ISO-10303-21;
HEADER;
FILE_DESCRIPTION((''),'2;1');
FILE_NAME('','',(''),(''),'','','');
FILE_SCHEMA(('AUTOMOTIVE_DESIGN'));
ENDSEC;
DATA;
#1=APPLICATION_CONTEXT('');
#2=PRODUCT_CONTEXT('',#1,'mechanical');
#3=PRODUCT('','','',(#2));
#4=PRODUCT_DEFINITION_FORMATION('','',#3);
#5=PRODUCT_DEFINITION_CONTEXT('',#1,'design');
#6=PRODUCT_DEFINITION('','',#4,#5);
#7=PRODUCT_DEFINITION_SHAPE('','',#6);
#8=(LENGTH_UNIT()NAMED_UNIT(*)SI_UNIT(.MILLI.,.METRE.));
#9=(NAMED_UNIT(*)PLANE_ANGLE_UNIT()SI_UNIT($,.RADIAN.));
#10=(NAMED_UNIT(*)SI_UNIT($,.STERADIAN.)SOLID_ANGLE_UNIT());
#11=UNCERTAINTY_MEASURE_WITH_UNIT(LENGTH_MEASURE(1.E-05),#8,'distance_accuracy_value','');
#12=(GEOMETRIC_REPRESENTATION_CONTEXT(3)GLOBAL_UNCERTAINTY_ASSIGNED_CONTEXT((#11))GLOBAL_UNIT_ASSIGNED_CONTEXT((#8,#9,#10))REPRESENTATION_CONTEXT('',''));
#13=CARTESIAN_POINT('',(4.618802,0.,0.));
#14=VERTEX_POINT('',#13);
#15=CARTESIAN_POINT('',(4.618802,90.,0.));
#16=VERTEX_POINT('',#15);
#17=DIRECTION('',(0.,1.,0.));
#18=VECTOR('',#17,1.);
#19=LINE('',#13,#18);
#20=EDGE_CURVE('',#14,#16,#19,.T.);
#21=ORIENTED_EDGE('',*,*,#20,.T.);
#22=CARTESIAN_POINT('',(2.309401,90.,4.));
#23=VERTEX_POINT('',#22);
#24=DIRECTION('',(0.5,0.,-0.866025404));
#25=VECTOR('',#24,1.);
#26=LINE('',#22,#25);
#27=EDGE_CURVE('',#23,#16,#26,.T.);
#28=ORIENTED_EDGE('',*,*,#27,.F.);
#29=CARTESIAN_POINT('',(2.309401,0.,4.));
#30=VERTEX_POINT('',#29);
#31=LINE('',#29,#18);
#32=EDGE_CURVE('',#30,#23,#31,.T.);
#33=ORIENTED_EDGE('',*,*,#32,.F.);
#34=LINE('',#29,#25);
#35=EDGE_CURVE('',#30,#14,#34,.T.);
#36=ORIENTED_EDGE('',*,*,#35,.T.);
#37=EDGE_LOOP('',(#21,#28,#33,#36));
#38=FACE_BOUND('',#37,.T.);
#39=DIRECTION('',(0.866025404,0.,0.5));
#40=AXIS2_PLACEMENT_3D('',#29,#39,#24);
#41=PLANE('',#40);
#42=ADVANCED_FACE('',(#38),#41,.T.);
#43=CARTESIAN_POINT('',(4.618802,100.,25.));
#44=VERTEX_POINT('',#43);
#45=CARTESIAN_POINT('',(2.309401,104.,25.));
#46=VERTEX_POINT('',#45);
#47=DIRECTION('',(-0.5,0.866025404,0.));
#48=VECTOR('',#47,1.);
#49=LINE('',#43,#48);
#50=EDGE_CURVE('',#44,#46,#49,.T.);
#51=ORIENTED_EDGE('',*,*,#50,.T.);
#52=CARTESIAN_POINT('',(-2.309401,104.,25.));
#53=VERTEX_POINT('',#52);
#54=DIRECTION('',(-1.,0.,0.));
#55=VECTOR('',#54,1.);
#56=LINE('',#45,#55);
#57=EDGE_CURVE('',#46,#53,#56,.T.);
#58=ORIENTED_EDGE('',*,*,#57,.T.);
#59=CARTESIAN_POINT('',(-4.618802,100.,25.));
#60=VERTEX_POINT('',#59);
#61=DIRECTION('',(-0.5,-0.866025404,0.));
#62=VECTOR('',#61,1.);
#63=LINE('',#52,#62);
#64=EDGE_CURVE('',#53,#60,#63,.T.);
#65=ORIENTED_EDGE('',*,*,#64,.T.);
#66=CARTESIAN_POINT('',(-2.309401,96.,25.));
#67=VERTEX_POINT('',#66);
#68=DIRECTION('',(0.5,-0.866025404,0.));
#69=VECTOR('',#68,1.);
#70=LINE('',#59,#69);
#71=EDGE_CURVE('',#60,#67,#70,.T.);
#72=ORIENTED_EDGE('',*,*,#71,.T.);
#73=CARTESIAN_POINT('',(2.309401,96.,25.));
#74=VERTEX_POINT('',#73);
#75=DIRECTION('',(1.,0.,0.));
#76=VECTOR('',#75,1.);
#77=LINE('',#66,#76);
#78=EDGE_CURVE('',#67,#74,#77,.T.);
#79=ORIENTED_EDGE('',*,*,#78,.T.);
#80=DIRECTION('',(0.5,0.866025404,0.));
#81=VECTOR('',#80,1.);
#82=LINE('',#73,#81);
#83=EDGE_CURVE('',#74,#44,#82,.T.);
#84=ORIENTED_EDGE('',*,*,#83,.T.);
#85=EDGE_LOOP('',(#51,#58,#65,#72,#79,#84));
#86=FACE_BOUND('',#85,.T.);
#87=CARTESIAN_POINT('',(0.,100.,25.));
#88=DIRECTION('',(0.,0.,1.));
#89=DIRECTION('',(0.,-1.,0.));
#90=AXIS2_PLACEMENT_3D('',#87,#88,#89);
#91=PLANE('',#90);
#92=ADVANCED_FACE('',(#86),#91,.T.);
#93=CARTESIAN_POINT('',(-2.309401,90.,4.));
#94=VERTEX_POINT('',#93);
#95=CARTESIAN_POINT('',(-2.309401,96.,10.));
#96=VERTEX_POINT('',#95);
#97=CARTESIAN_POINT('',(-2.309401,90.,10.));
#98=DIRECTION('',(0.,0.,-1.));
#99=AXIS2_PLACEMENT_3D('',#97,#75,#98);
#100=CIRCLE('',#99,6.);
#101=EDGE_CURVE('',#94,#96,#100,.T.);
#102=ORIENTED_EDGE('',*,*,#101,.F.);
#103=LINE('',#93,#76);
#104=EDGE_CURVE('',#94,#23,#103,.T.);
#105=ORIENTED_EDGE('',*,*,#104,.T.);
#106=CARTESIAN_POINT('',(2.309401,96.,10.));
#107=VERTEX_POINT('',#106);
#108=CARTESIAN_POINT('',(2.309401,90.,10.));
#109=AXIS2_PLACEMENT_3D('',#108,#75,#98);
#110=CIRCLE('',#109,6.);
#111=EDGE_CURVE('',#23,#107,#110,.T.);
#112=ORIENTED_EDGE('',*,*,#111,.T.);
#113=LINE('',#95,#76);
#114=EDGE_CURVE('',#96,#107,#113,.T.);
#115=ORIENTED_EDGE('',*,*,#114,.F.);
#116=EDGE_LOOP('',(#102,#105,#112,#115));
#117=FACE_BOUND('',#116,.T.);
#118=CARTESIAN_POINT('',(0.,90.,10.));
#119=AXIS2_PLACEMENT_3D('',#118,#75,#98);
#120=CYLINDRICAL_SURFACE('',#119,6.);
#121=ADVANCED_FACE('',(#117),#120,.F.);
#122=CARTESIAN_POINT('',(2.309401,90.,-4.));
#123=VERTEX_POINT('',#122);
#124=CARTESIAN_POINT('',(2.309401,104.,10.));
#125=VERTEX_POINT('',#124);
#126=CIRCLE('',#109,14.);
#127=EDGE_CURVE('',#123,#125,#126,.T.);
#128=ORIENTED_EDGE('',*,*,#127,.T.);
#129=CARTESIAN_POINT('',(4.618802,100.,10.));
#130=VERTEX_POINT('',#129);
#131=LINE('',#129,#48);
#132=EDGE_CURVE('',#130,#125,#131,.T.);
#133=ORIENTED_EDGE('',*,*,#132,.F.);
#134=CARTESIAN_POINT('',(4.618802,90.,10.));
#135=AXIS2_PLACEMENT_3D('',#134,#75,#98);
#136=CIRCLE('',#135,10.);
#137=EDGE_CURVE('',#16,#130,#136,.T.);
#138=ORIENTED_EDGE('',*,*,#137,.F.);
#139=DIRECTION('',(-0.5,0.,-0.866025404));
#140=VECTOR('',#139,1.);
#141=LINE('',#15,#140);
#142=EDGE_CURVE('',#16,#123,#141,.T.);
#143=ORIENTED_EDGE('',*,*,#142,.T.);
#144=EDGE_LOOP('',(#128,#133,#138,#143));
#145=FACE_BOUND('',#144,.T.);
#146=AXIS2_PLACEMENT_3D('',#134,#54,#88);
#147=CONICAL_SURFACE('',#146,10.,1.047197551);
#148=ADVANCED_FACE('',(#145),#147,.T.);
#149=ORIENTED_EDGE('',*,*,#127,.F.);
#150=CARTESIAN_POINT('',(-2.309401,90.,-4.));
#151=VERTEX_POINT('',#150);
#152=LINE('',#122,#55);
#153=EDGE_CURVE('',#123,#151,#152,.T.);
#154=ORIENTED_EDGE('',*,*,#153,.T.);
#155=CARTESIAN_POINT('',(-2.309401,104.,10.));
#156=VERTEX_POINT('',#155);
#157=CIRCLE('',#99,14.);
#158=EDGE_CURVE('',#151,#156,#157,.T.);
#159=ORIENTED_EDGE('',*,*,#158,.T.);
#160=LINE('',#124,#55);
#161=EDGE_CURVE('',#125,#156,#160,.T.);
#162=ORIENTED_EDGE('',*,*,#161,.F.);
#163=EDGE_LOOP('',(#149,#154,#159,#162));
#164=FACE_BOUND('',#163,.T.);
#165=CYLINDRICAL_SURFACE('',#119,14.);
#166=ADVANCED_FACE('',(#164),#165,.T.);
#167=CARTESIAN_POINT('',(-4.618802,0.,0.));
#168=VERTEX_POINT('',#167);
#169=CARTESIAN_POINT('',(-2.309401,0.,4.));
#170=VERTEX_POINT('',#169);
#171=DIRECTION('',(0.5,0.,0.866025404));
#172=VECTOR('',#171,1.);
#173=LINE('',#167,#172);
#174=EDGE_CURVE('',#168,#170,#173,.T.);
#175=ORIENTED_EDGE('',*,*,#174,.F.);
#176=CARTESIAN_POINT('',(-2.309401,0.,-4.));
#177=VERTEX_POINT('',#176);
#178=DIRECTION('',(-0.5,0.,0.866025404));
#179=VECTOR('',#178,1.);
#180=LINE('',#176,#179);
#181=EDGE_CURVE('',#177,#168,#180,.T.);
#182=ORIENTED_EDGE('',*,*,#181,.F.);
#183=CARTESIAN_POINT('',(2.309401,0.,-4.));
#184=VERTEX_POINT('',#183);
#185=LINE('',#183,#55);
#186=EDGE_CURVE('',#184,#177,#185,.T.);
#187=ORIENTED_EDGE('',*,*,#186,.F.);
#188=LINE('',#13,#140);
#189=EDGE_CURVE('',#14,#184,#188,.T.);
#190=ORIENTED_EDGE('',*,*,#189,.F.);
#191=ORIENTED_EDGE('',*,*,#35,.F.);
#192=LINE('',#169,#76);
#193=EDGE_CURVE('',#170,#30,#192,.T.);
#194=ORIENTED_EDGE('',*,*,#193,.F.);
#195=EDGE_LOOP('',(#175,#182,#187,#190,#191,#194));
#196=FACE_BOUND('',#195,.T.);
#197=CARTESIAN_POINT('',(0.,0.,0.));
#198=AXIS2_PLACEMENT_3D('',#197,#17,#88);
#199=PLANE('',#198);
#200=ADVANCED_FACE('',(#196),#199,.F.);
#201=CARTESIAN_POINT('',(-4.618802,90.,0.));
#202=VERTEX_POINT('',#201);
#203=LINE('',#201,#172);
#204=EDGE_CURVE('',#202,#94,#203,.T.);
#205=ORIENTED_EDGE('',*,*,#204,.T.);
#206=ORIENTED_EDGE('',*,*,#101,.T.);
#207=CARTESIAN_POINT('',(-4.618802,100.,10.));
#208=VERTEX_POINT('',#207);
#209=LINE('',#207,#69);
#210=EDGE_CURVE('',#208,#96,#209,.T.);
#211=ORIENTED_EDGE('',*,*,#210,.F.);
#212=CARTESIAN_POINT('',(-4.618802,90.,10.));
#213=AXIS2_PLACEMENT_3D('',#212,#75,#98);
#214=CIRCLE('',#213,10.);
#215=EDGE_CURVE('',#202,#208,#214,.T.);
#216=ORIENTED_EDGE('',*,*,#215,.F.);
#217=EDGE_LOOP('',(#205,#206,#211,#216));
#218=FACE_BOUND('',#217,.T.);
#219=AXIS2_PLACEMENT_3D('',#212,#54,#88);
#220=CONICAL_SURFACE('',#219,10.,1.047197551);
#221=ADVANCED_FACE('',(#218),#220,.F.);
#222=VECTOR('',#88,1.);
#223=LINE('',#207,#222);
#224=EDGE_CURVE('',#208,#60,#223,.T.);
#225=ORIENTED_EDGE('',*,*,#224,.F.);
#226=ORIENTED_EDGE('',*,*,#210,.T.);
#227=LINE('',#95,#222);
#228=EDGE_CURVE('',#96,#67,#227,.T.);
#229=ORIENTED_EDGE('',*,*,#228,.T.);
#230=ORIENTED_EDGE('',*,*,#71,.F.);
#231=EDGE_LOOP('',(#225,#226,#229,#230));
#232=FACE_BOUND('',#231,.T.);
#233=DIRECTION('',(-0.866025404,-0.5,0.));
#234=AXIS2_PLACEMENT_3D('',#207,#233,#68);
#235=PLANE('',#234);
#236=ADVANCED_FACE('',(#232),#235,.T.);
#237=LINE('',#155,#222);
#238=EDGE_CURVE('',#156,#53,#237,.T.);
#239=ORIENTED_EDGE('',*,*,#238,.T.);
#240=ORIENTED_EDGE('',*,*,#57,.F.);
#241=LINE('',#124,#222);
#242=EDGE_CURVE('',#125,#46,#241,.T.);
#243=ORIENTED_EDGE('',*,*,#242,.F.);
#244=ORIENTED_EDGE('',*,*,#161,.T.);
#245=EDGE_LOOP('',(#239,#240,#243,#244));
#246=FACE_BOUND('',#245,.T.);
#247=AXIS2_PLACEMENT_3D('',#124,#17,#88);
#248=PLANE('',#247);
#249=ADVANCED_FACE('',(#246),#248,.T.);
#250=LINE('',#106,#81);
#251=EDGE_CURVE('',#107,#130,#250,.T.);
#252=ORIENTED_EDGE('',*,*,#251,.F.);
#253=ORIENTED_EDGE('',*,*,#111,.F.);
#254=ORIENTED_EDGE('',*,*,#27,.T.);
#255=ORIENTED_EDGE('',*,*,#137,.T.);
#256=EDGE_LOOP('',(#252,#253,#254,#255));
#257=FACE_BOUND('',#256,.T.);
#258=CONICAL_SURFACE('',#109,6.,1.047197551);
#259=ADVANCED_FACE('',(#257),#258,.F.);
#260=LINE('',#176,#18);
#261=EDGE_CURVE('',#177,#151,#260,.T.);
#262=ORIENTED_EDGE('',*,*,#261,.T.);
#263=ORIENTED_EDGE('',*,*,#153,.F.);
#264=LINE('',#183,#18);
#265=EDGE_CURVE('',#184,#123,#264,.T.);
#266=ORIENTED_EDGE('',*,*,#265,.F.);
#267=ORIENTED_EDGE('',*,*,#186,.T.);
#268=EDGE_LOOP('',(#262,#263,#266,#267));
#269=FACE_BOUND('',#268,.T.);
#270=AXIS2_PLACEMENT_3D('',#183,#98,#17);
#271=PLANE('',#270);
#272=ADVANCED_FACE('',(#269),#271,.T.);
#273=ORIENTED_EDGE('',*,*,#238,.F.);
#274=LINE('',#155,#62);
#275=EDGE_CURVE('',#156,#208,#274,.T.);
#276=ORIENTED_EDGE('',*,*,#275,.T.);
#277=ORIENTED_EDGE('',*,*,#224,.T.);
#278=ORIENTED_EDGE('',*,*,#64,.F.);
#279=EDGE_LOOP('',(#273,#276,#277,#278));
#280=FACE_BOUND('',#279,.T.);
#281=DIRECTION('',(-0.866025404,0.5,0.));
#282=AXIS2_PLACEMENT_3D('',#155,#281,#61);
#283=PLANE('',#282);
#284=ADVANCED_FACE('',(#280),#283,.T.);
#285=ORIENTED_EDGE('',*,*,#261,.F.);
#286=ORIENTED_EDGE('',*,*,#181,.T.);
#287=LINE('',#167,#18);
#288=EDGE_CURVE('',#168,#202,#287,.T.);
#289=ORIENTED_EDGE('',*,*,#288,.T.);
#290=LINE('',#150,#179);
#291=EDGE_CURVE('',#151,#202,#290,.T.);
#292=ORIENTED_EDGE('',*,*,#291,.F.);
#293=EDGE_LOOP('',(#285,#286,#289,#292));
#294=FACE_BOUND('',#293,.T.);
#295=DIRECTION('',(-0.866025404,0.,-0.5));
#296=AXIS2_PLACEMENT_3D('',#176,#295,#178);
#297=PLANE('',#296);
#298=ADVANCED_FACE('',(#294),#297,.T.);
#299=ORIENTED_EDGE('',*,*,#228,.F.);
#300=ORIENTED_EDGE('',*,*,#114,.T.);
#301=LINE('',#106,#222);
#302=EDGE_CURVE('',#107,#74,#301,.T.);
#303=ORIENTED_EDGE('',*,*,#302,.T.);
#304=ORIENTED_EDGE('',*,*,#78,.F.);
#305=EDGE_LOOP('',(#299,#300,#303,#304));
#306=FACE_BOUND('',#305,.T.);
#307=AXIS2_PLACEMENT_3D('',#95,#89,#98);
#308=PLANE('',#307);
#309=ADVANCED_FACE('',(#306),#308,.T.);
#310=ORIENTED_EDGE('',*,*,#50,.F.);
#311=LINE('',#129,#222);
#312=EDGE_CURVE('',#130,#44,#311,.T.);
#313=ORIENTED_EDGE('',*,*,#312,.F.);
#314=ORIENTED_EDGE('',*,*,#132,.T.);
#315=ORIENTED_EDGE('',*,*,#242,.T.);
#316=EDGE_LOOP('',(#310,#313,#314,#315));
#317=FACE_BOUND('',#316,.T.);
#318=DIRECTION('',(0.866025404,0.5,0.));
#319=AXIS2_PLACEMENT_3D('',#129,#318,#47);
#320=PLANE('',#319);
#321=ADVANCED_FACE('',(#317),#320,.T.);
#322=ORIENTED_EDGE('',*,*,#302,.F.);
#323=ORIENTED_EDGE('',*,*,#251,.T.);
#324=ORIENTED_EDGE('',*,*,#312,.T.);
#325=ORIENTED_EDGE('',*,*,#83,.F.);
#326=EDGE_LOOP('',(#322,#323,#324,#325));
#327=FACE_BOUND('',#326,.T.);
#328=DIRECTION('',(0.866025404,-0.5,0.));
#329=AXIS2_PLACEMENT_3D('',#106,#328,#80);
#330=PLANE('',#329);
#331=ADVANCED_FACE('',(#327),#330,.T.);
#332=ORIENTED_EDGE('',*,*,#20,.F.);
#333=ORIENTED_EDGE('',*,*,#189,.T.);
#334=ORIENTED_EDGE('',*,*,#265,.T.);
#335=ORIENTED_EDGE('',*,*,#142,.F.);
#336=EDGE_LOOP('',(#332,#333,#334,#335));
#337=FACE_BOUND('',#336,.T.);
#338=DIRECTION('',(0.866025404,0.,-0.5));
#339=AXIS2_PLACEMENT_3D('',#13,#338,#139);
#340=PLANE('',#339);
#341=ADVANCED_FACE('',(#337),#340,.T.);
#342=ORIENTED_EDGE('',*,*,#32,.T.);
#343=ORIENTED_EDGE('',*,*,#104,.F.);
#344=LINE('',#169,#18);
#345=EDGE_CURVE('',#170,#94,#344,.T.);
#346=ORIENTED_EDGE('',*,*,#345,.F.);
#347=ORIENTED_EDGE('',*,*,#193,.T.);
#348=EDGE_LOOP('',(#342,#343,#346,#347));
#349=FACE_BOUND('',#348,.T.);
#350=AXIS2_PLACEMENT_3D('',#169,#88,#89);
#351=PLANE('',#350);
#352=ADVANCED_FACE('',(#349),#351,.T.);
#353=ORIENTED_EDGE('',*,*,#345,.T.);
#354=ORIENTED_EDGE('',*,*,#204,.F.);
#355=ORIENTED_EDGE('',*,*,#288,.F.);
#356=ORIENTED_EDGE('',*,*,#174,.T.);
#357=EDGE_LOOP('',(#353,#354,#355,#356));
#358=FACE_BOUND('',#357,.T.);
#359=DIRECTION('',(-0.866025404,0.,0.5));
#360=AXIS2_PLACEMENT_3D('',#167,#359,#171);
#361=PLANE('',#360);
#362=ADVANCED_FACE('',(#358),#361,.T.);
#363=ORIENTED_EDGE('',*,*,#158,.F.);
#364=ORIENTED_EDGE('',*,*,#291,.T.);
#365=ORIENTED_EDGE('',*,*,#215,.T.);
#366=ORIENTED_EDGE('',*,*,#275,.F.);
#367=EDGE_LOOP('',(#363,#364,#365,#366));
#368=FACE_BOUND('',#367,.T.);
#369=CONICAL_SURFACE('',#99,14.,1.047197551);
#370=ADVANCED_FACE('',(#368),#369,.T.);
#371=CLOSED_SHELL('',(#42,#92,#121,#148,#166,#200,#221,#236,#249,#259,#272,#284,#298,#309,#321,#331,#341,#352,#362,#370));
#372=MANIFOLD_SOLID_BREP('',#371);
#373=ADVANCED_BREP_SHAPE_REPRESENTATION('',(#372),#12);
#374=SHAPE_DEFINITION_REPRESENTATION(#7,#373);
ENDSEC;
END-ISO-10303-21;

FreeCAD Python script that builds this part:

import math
import FreeCAD as App
import Part
import Sketcher
Q = App.Units.Quantity


def add_polygon(sketch, points):
    """Adds a closed chain of lines whose ends are joined by coincident constraints."""
    first, n = sketch.GeometryCount, len(points)
    for a, b in zip(points, points[1:] + points[:1]):
        sketch.addGeometry(Part.LineSegment(App.Vector(*a, 0), App.Vector(*b, 0)), False)
    for i in range(n):
        sketch.addConstraint(Sketcher.Constraint("Coincident", first + i, 2, first + (i + 1) % n, 1))

doc = App.newDocument("Part")
params = doc.addObject("Spreadsheet::Sheet", "Params")
for row, (alias, value) in enumerate([
    ("sketch2_radius", "10 mm"),
    ("sketch2_width", "90 mm"),
    ("sketch2_height", "15 mm"),
], start=1):
    params.set(f"A{row}", alias)
    params.set(f"B{row}", "=" + value)
    params.setAlias(f"B{row}", alias)

body = doc.addObject("PartDesign::Body", "Body")

# Sketch on XZ plane
sketch1 = body.newObject("Sketcher::SketchObject", "Sketch")
sketch1.AttachmentSupport = (doc.getObject("XZ_Plane"), [""])
sketch1.MapMode = "FlatFace"
add_polygon(sketch1, [(2.3, 4), (4.6, 0), (2.3, -4), (-2.3, -4), (-4.6, 0), (-2.3, 4)])  # lines 0-5
sketch1.addConstraint(Sketcher.Constraint("Horizontal", 2))
sketch1.addConstraint(Sketcher.Constraint("Horizontal", 5))
sketch1.addConstraint(Sketcher.Constraint("Symmetric", 0, 2, 3, 2, -1, 1))
sketch1.addConstraint(Sketcher.Constraint("Symmetric", 1, 2, 4, 2, -1, 1))
sketch1.addConstraint(Sketcher.Constraint("PointOnObject", 0, 2, -1))
sketch1.addConstraint(Sketcher.Constraint("Parallel", 0, 3))
sketch1.addConstraint(Sketcher.Constraint("Vertical", 2, 2, 4, 2))
sketch1.addConstraint(Sketcher.Constraint("Angle", 0, Q("-60 deg")))
sketch1.addConstraint(Sketcher.Constraint("DistanceY", 1, 2, -1, 1, Q("4 mm")))
sketch1.addConstraint(Sketcher.Constraint("DistanceX", -1, 1, 1, 2, Q("2.309401 mm")))

# Sketch on YZ plane
sketch2 = body.newObject("Sketcher::SketchObject", "Sketch001")
sketch2.AttachmentSupport = (doc.getObject("YZ_Plane"), [""])
sketch2.MapMode = "FlatFace"
sketch2.addGeometry(Part.LineSegment(App.Vector(0, 0, 0), App.Vector(90, 0, 0)), False)
sketch2.addGeometry(Part.ArcOfCircle(Part.Circle(App.Vector(90, 10, 0), App.Vector(0, 0, 1), 10), math.radians(-90), math.radians(0)), False)
sketch2.addGeometry(Part.LineSegment(App.Vector(100, 10, 0), App.Vector(100, 25, 0)), False)
sketch2.addConstraint(Sketcher.Constraint("Tangent", 0, 2, 1, 1))
sketch2.addConstraint(Sketcher.Constraint("Tangent", 1, 2, 2, 1))
sketch2.addConstraint(Sketcher.Constraint("Horizontal", 0))
sketch2.addConstraint(Sketcher.Constraint("Vertical", 2))
sketch2.addConstraint(Sketcher.Constraint("Coincident", 0, 1, -1, 1))
sketch2.addConstraint(Sketcher.Constraint("Radius", 1, Q("10 mm")))
sketch2.addConstraint(Sketcher.Constraint("DistanceX", 0, 1, 0, 2, Q("90 mm")))
sketch2.addConstraint(Sketcher.Constraint("DistanceY", 2, 1, 2, 2, Q("15 mm")))
sketch2.setExpression("Constraints[5]", "Params.sketch2_radius")
sketch2.setExpression("Constraints[6]", "Params.sketch2_width")
sketch2.setExpression("Constraints[7]", "Params.sketch2_height")
doc.recompute()

additivepipe = body.newObject("PartDesign::AdditivePipe", "AdditivePipe")
additivepipe.Profile = sketch1
additivepipe.Spine = (sketch2, ["Edge1", "Edge2", "Edge3"])

doc.recompute()
